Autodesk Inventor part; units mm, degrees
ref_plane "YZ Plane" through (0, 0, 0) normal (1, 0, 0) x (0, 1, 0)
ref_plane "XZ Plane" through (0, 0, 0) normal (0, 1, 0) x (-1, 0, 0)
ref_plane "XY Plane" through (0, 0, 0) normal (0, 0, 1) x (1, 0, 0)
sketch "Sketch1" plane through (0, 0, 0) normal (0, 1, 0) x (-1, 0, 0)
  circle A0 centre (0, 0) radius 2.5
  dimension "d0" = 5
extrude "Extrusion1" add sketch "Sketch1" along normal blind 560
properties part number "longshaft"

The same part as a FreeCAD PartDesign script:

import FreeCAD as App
import Part
import Sketcher
from FreeCAD import Vector
Q = App.Units.Quantity

doc = App.newDocument("Part")
body = doc.addObject("PartDesign::Body", "Body")

# Sketch on XZ plane
sketch1 = doc.addObject("Sketcher::SketchObject", "Sketch")
body.addObject(sketch1)
sketch1.AttachmentSupport = (doc.XZ_Plane, [""])
sketch1.MapMode = "FlatFace"
sketch1.addGeometry(Part.Circle(Vector(0, 0, 0), Vector(0, 0, 1), 2.5), False)
sketch1.addConstraint(Sketcher.Constraint("Coincident", 0, 3, -1, 1))
sketch1.addConstraint(Sketcher.Constraint("Diameter", 0, Q("5 mm")))
pad1 = doc.addObject("PartDesign::Pad", "Pad")
body.addObject(pad1)
pad1.Profile = sketch1
pad1.Length = 560
pad1.Reversed = True

doc.recompute()
